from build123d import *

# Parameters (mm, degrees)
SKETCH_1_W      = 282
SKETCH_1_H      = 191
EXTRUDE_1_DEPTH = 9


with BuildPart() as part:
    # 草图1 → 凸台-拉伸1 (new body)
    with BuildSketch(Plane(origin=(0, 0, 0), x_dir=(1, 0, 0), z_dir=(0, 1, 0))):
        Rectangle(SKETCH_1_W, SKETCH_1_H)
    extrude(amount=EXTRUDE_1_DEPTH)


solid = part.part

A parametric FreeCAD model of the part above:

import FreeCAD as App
import Part
import Sketcher

V = App.Vector
Q = App.Units.Quantity

doc = App.newDocument("Part")
body = doc.addObject("PartDesign::Body", "Body")

# Sketch on XZ plane
sketch1 = body.newObject("Sketcher::SketchObject", "Sketch")
sketch1.AttachmentSupport = (doc.getObject("XZ_Plane"), [""])
sketch1.MapMode = "FlatFace"
sketch1.addGeometry([
    Part.LineSegment(V(-141, -95.5, 0), V(-141, 95.5, 0)),
    Part.LineSegment(V(-141, 95.5, 0), V(141, 95.5, 0)),
    Part.LineSegment(V(141, 95.5, 0), V(141, -95.5, 0)),
    Part.LineSegment(V(141, -95.5, 0), V(-141, -95.5, 0)),
], False)
sketch1.addConstraint([
    Sketcher.Constraint("Coincident", 0, 2, 1, 1),
    Sketcher.Constraint("Coincident", 1, 2, 2, 1),
    Sketcher.Constraint("Coincident", 2, 2, 3, 1),
    Sketcher.Constraint("Coincident", 3, 2, 0, 1),
    Sketcher.Constraint("Vertical", 0),
    Sketcher.Constraint("Horizontal", 1),
    Sketcher.Constraint("Vertical", 2),
    Sketcher.Constraint("Horizontal", 3),
    Sketcher.Constraint("Symmetric", 0, 2, 2, 2, -1, 1),
    Sketcher.Constraint("DistanceX", 1, 1, 1, 2, Q("282 mm")),
    Sketcher.Constraint("DistanceY", 0, 1, 0, 2, Q("191 mm")),
])
pad1 = body.newObject("PartDesign::Pad", "Pad")
pad1.Profile = sketch1
pad1.Length = 9
pad1.Reversed = True

doc.recompute()
